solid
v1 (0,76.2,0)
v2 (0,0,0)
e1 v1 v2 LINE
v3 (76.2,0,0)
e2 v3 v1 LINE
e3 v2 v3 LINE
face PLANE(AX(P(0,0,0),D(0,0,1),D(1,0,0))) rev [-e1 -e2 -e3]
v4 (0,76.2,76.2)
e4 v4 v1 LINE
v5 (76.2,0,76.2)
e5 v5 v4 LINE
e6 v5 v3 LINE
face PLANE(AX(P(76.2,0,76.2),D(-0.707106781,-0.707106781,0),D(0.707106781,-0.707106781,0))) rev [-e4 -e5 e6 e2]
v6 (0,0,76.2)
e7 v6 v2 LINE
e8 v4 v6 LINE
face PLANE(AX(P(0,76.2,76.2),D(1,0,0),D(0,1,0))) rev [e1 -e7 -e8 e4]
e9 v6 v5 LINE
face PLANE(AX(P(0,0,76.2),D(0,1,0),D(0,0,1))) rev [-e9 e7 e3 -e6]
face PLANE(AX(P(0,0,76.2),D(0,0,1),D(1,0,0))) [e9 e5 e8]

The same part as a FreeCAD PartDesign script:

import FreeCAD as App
import Part
import Sketcher
Q = App.Units.Quantity

doc = App.newDocument("Part")
body = doc.addObject("PartDesign::Body", "Body")

# Sketch on XY plane
sketch1 = doc.addObject("Sketcher::SketchObject", "Sketch")
body.addObject(sketch1)
sketch1.AttachmentSupport = (doc.XY_Plane, [""])
sketch1.MapMode = "FlatFace"
sketch1.addGeometry([
    Part.LineSegment(App.Vector(0, 76, 0), App.Vector(0, 0, 0)),
    Part.LineSegment(App.Vector(0, 0, 0), App.Vector(76, 0, 0)),
    Part.LineSegment(App.Vector(76, 0, 0), App.Vector(0, 76, 0)),
], False)
sketch1.addConstraint([
    Sketcher.Constraint("Coincident", 0, 2, 1, 1),
    Sketcher.Constraint("Coincident", 1, 2, 2, 1),
    Sketcher.Constraint("Coincident", 2, 2, 0, 1),
    Sketcher.Constraint("Vertical", 0),
    Sketcher.Constraint("Horizontal", 1),
    Sketcher.Constraint("Coincident", 0, 2, -1, 1),
    Sketcher.Constraint("Equal", 1, 0),
    Sketcher.Constraint("DistanceX", 1, 1, 1, 2, Q("3 in")),
])
pad1 = doc.addObject("PartDesign::Pad", "Pad")
body.addObject(pad1)
pad1.Profile = sketch1
pad1.Length = Q("3 in")

doc.recompute()
